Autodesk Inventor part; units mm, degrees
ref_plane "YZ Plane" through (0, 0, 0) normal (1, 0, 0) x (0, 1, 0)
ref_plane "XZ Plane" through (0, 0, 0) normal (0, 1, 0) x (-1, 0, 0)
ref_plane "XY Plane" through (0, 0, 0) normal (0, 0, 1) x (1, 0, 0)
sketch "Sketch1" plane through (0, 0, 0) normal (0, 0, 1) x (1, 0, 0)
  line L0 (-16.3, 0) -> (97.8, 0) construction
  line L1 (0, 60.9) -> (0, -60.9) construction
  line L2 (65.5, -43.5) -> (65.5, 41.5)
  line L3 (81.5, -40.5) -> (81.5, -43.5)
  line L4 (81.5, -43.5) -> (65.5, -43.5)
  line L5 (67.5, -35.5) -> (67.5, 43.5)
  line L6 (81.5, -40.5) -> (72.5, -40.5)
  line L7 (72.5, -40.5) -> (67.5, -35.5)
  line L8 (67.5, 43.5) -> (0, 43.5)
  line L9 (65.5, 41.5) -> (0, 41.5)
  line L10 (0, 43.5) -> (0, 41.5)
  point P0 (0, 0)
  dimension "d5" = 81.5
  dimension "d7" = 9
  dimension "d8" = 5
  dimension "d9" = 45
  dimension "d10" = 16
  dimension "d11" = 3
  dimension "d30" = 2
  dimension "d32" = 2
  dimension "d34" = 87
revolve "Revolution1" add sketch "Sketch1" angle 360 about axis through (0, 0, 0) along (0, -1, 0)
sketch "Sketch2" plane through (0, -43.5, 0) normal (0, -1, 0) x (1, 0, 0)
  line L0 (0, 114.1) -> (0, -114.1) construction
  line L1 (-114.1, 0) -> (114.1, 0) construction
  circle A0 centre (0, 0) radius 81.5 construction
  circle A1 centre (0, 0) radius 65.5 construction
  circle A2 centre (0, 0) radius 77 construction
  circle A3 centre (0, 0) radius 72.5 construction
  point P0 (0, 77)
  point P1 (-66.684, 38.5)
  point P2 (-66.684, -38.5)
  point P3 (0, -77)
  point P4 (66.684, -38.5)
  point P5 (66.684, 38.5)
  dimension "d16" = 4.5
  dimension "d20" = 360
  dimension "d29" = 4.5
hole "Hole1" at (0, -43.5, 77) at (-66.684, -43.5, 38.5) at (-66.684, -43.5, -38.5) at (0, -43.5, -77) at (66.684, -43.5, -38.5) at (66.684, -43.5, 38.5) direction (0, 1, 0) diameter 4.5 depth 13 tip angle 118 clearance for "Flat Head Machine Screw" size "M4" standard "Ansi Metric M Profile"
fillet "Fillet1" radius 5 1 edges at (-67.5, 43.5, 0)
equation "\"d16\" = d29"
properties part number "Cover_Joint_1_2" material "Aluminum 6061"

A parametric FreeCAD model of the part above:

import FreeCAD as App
import Part
import Sketcher

V = App.Vector


def edges_at(feature, points):
    """Names of the edges that pass closest to the given points."""
    edges = feature.Shape.Edges
    near = lambda p: min(range(len(edges)), key=lambda i: edges[i].distToShape(Part.Vertex(*p))[0])
    return sorted({f"Edge{near(p) + 1}" for p in points})


def add_polygon(sketch, points):
    """Adds a closed chain of lines whose ends are joined by coincident constraints."""
    first, n = sketch.GeometryCount, len(points)
    for a, b in zip(points, points[1:] + points[:1]):
        sketch.addGeometry(Part.LineSegment(App.Vector(*a, 0), App.Vector(*b, 0)), False)
    for i in range(n):
        sketch.addConstraint(Sketcher.Constraint("Coincident", first + i, 2, first + (i + 1) % n, 1))

doc = App.newDocument("Part")
params = doc.addObject("Spreadsheet::Sheet", "Params")
for row, (alias, value) in enumerate([
    ("sketch1_width", "16 mm"),
    ("sketch1_width2", "9 mm"),
    ("sketch1_height", "3 mm"),
    ("sketch1_height2", "2 mm"),
    ("revolution_angle", "360 deg"),
    ("sketch2_diameter", "4.5 mm"),
    ("hole_diameter", "4.5 mm"),
    ("hole_depth", "13 mm"),
    ("fillet_radius", "5 mm"),
], start=1):
    params.set(f"A{row}", alias)
    params.set(f"B{row}", "=" + value)
    params.setAlias(f"B{row}", alias)

body = doc.addObject("PartDesign::Body", "Body")

# Sketch on XY plane
sketch1 = body.newObject("Sketcher::SketchObject", "Sketch")
sketch1.AttachmentSupport = (doc.getObject("XY_Plane"), [""])
sketch1.MapMode = "FlatFace"
add_polygon(sketch1, [(65.5, 41.5), (65.5, -43.5), (81.5, -43.5), (81.5, -40.5), (72.5, -40.5), (67.5, -35.5), (67.5, 43.5), (0, 43.5), (0, 41.5)])  # lines 0-8
sketch1.addConstraint(Sketcher.Constraint("Vertical", 0))
sketch1.addConstraint(Sketcher.Constraint("Horizontal", 1))
sketch1.addConstraint(Sketcher.Constraint("Vertical", 2))
sketch1.addConstraint(Sketcher.Constraint("Horizontal", 3))
sketch1.addConstraint(Sketcher.Constraint("Vertical", 5))
sketch1.addConstraint(Sketcher.Constraint("Horizontal", 6))
sketch1.addConstraint(Sketcher.Constraint("Vertical", 7))
sketch1.addConstraint(Sketcher.Constraint("Horizontal", 8))
sketch1.addConstraint(Sketcher.Constraint("PointOnObject", 6, 2, -2))
sketch1.addConstraint(Sketcher.Constraint("DistanceX", 1, 1, 1, 2, 16.0))
sketch1.addConstraint(Sketcher.Constraint("DistanceX", 3, 2, 3, 1, 9.0))
sketch1.addConstraint(Sketcher.Constraint("DistanceY", 2, 1, 2, 2, 3.0))
sketch1.addConstraint(Sketcher.Constraint("DistanceY", 7, 2, 7, 1, 2.0))
sketch1.addConstraint(Sketcher.Constraint("DistanceX", 4, 2, 3, 2, 5.0))
sketch1.addConstraint(Sketcher.Constraint("DistanceY", 3, 2, 4, 2, 5.0))
sketch1.addConstraint(Sketcher.Constraint("DistanceY", 0, 2, 5, 2, 87.0))
sketch1.addConstraint(Sketcher.Constraint("DistanceX", -1, 1, 1, 2, 81.5))
sketch1.addConstraint(Sketcher.Constraint("DistanceY", 0, 2, -1, 1, 43.5))
sketch1.setExpression("Constraints[18]", "Params.sketch1_width")
sketch1.setExpression("Constraints[19]", "Params.sketch1_width2")
sketch1.setExpression("Constraints[20]", "Params.sketch1_height")
sketch1.setExpression("Constraints[21]", "Params.sketch1_height2")
revolution = body.newObject("PartDesign::Revolution", "Revolution")
revolution.Profile = sketch1
revolution.ReferenceAxis = (sketch1, ["V_Axis"])
revolution.setExpression("Angle", "Params.revolution_angle")

# Sketch on XZ plane
sketch2 = body.newObject("Sketcher::SketchObject", "Sketch001")
sketch2.AttachmentSupport = (doc.getObject("XZ_Plane"), [""])
sketch2.MapMode = "FlatFace"
sketch2.AttachmentOffset = App.Placement(V(0, 0, 43.5), App.Rotation())
sketch2.addGeometry(Part.Circle(V(0, 77, 0), V(0, 0, 1), 2.25), False)
sketch2.addGeometry(Part.Circle(V(-66.684, 38.5, 0), V(0, 0, 1), 2.25), False)
sketch2.addGeometry(Part.Circle(V(-66.684, -38.5, 0), V(0, 0, 1), 2.25), False)
sketch2.addGeometry(Part.Circle(V(0, -77, 0), V(0, 0, 1), 2.25), False)
sketch2.addGeometry(Part.Circle(V(66.684, -38.5, 0), V(0, 0, 1), 2.25), False)
sketch2.addGeometry(Part.Circle(V(66.684, 38.5, 0), V(0, 0, 1), 2.25), False)
sketch2.addConstraint(Sketcher.Constraint("Equal", 0, 1))
sketch2.addConstraint(Sketcher.Constraint("Equal", 1, 2))
sketch2.addConstraint(Sketcher.Constraint("Equal", 2, 3))
sketch2.addConstraint(Sketcher.Constraint("Equal", 3, 4))
sketch2.addConstraint(Sketcher.Constraint("Equal", 4, 5))
sketch2.addConstraint(Sketcher.Constraint("Symmetric", 0, 3, 3, 3, -1, 1))
sketch2.addConstraint(Sketcher.Constraint("Symmetric", 1, 3, 4, 3, -1, 1))
sketch2.addConstraint(Sketcher.Constraint("Symmetric", 2, 3, 5, 3, -1, 1))
sketch2.addConstraint(Sketcher.Constraint("Symmetric", 2, 3, 4, 3, -2))
sketch2.addConstraint(Sketcher.Constraint("PointOnObject", 0, 3, -2))
sketch2.addConstraint(Sketcher.Constraint("Diameter", 0, 4.5))
sketch2.addConstraint(Sketcher.Constraint("DistanceY", -1, 1, 0, 3, 77.0))
sketch2.addConstraint(Sketcher.Constraint("DistanceY", 2, 3, 1, 3, 77.0))
sketch2.addConstraint(Sketcher.Constraint("DistanceX", 1, 3, -1, 1, 66.684))
sketch2.setExpression("Constraints[10]", "Params.sketch2_diameter")
doc.recompute()
hole = body.newObject("PartDesign::Hole", "Hole")
hole.Profile = sketch2
hole.ThreadType = "None"
hole.setExpression("Diameter", "Params.hole_diameter")
hole.DepthType = "Dimension"
hole.setExpression("Depth", "Params.hole_depth")
hole.DrillPoint = "Angled"
hole.DrillPointAngle = 118
doc.recompute()

fillet = body.newObject("PartDesign::Fillet", "Fillet")
fillet.Base = (hole, edges_at(hole, [(-67.5, 43.5, 0)]))
fillet.setExpression("Radius", "Params.fillet_radius")

doc.recompute()
